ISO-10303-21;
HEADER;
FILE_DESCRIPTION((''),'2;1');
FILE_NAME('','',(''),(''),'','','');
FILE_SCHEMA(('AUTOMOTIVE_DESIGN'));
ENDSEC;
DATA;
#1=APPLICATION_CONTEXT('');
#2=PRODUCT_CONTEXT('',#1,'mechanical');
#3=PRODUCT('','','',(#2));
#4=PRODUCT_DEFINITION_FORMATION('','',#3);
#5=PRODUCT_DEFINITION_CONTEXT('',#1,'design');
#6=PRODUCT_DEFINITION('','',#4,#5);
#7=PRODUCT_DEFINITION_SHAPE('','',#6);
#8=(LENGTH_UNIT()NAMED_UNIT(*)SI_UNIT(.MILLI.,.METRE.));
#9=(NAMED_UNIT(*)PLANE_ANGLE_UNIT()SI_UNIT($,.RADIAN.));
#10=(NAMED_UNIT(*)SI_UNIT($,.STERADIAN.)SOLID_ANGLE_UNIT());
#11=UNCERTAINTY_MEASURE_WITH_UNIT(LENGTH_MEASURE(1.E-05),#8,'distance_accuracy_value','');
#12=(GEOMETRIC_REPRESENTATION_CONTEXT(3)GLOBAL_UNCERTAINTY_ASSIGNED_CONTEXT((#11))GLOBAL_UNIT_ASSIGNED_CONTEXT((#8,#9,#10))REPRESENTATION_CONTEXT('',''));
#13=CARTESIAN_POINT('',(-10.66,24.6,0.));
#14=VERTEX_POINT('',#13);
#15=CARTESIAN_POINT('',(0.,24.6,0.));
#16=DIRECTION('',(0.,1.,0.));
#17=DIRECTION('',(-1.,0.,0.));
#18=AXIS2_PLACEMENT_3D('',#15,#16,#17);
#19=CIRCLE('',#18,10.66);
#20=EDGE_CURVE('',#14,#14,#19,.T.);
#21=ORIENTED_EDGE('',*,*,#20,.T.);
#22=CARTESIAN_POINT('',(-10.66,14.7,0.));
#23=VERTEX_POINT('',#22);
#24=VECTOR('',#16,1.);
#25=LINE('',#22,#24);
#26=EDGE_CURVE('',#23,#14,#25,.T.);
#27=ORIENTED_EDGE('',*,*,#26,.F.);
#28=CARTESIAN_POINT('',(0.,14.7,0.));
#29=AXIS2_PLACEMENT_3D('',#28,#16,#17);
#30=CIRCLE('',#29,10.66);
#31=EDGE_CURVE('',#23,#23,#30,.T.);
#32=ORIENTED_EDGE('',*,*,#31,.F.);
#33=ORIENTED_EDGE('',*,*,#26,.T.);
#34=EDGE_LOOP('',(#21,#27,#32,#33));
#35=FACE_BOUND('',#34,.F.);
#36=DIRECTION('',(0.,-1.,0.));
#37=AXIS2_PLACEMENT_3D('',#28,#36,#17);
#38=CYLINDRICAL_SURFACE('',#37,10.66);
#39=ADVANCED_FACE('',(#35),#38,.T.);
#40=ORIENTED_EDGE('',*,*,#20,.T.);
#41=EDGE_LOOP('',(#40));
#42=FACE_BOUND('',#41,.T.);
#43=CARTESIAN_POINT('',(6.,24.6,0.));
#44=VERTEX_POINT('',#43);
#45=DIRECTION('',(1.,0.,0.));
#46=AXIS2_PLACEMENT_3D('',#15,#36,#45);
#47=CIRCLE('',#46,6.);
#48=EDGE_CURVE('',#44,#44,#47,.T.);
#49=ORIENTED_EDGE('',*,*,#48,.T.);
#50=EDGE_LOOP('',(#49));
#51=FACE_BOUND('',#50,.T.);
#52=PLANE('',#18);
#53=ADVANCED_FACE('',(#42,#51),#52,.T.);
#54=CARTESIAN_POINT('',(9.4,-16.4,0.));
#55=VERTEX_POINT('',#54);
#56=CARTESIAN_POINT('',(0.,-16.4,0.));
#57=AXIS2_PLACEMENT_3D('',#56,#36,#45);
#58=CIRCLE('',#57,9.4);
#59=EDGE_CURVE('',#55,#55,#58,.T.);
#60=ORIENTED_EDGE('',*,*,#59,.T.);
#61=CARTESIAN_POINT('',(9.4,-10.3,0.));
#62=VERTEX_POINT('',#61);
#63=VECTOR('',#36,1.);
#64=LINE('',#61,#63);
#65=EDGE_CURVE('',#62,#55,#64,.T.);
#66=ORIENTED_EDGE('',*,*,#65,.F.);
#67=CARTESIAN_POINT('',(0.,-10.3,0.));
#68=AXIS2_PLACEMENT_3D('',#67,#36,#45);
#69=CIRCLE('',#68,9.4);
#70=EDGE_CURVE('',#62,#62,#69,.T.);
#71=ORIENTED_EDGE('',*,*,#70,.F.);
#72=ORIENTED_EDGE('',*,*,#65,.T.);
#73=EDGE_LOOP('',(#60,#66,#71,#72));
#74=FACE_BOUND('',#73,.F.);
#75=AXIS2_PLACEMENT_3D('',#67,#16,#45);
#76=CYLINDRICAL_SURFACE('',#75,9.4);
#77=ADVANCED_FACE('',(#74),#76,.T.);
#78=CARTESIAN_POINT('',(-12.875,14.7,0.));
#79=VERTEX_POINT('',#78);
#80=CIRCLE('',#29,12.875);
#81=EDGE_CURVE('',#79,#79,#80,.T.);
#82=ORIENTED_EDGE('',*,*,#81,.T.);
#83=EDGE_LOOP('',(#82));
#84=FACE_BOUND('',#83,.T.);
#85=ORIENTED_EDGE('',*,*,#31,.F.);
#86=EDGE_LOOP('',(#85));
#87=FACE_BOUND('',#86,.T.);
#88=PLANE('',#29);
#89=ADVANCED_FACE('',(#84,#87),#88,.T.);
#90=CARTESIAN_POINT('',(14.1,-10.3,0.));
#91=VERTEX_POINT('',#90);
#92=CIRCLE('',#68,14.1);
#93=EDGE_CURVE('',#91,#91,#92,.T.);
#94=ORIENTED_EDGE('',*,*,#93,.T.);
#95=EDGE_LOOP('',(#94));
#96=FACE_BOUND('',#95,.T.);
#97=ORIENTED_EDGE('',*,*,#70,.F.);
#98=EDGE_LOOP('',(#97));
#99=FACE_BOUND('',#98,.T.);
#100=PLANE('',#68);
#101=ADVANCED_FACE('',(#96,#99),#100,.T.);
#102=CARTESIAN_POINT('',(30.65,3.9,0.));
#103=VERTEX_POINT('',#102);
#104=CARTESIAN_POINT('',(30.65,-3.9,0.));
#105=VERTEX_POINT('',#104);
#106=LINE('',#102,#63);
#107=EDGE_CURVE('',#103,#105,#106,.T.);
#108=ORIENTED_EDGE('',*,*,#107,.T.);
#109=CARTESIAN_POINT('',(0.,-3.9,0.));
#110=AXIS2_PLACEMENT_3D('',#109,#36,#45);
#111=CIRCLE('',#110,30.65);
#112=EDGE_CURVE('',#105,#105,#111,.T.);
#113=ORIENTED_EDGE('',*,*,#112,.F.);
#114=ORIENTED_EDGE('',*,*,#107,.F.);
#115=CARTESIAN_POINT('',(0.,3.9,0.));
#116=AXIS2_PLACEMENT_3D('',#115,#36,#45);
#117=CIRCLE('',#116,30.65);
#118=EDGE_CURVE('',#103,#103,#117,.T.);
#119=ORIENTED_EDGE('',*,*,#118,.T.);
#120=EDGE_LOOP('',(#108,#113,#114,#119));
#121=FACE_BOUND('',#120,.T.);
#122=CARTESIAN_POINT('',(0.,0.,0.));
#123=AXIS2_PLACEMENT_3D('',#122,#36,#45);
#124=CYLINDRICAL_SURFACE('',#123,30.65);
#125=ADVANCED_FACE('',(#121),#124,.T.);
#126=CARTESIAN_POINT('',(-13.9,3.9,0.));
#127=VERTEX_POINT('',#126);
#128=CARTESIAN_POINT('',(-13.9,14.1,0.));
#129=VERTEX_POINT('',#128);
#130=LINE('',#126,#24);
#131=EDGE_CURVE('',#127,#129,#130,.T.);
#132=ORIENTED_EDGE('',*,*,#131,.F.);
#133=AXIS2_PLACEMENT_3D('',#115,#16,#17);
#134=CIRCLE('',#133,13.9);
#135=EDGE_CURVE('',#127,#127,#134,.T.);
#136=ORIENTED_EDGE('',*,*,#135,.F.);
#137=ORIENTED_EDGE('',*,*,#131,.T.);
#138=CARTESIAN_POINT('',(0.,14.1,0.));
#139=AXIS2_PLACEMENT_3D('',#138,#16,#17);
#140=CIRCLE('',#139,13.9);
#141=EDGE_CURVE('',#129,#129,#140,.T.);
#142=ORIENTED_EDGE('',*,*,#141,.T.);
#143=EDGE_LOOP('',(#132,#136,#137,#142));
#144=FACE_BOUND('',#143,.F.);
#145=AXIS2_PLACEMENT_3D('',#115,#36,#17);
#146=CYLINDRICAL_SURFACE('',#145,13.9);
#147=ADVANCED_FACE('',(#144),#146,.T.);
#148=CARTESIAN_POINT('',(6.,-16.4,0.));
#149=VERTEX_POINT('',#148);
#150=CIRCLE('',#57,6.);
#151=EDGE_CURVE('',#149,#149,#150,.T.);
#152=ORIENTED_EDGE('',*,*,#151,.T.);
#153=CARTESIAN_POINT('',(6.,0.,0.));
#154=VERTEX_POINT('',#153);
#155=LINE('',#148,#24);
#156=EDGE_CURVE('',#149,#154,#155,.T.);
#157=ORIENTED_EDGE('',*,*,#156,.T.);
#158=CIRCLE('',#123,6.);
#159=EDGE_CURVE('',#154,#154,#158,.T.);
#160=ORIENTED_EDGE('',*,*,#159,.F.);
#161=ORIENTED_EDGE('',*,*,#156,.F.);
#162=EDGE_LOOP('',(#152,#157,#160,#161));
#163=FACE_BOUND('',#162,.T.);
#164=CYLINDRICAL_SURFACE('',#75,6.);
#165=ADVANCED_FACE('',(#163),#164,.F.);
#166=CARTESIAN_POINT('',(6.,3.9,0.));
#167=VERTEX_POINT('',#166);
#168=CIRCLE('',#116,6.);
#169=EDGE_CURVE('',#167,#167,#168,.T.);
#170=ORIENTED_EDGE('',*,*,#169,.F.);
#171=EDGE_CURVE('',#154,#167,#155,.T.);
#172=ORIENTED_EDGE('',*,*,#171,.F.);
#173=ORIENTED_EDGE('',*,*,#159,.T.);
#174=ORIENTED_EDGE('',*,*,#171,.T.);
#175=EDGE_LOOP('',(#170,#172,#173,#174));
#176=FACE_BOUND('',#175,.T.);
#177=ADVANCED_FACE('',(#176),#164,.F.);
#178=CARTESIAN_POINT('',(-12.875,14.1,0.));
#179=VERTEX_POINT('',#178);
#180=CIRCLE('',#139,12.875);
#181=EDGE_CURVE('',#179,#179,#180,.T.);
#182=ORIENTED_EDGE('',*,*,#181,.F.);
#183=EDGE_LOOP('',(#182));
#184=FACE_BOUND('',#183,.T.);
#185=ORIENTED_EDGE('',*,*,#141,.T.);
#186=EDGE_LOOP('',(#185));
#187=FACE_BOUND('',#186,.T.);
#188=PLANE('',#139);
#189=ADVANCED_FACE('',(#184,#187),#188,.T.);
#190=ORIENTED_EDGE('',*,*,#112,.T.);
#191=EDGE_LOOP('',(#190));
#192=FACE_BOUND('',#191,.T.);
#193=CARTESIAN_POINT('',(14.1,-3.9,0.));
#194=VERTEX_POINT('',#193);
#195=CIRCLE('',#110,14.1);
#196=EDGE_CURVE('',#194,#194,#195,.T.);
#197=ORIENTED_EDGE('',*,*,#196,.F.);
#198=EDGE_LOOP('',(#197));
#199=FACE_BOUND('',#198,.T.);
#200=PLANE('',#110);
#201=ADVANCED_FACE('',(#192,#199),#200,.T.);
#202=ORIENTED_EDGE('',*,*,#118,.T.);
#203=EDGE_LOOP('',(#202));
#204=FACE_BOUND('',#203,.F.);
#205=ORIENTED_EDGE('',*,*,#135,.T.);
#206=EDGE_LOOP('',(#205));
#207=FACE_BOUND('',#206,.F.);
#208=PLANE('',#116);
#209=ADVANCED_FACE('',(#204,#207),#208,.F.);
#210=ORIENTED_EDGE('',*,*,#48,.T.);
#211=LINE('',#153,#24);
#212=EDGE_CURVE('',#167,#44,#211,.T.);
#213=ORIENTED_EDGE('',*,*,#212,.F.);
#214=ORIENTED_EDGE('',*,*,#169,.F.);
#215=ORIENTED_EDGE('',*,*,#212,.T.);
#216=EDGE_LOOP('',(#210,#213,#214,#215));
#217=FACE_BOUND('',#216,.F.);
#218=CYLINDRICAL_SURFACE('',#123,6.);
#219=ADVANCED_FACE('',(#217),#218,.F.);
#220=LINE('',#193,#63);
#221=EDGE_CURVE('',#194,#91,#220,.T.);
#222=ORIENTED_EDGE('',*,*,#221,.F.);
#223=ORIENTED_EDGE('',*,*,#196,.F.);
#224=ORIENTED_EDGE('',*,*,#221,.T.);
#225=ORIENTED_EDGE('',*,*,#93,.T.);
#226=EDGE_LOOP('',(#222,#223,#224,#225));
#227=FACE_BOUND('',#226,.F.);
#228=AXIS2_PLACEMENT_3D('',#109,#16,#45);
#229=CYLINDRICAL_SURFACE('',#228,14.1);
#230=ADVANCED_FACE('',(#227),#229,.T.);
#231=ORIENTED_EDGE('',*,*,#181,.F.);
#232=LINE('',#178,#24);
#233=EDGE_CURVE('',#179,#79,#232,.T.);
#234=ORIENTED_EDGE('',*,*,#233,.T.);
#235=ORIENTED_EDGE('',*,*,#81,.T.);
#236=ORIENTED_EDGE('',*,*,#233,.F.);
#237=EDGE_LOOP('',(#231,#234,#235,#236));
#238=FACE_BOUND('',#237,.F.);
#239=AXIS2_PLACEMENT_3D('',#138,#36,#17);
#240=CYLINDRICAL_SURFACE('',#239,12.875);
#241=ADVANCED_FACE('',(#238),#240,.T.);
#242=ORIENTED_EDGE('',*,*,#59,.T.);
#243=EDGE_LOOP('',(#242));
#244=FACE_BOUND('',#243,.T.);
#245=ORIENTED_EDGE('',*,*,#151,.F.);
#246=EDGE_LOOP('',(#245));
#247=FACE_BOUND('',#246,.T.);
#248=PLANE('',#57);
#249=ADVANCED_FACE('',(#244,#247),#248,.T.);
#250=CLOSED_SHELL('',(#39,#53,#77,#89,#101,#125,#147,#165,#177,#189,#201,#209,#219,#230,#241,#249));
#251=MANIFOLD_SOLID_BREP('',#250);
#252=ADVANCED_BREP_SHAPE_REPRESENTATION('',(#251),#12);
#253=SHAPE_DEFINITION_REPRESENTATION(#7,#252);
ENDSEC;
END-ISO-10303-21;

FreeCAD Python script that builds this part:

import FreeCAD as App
import Part
import Sketcher

V = App.Vector
Q = App.Units.Quantity

doc = App.newDocument("Part")
params = doc.addObject("Spreadsheet::Sheet", "Params")
for row, (alias, value) in enumerate([
    ("sketch1_diameter", "12 mm"),
    ("sketch1_diameter2", "61.3 mm"),
    ("pad1_length", "7.8 mm"),
    ("sketch2_diameter", "12 mm"),
    ("sketch2_diameter2", "28.2 mm"),
    ("pad2_length", "6.4 mm"),
    ("sketch3_diameter", "12 mm"),
    ("sketch3_diameter2", "18.8 mm"),
    ("pad3_length", "6.1 mm"),
    ("sketch4_diameter", "27.8 mm"),
    ("pad4_length", "10.2 mm"),
    ("sketch5_diameter", "25.75 mm"),
    ("pad5_length", "0.6 mm"),
    ("sketch6_diameter", "21.32 mm"),
    ("pad6_length", "9.9 mm"),
    ("sketch7_diameter", "12 mm"),
], start=1):
    params.set(f"A{row}", alias)
    params.set(f"B{row}", "=" + value)
    params.setAlias(f"B{row}", alias)

body = doc.addObject("PartDesign::Body", "Body")

sketch1 = body.newObject("Sketcher::SketchObject", "Sketch")
sketch1.AttachmentSupport = (doc.getObject("XZ_Plane"), [""])
sketch1.MapMode = "FlatFace"
sketch1.addGeometry(Part.Circle(V(0, 0, 0), V(0, 0, 1), 30.65), False)
sketch1.addGeometry(Part.Circle(V(0, 0, 0), V(0, 0, 1), 6), False)
sketch1.addConstraint(Sketcher.Constraint("Coincident", 0, 3, -1, 1))
sketch1.addConstraint(Sketcher.Constraint("Coincident", 1, 3, -1, 1))
sketch1.addConstraint(Sketcher.Constraint("Diameter", 1, Q("12 mm")))
sketch1.addConstraint(Sketcher.Constraint("Diameter", 0, Q("61.3 mm")))
sketch1.setExpression("Constraints[2]", "Params.sketch1_diameter")
sketch1.setExpression("Constraints[3]", "Params.sketch1_diameter2")
pad1 = body.newObject("PartDesign::Pad", "Pad")
pad1.Profile = sketch1
pad1.setExpression("Length", "Params.pad1_length")
pad1.Midplane = True

sketch2 = body.newObject("Sketcher::SketchObject", "Sketch001")
sketch2.AttachmentSupport = (doc.getObject("XZ_Plane"), [""])
sketch2.MapMode = "FlatFace"
sketch2.AttachmentOffset = App.Placement(V(0, 0, 3.9), App.Rotation())
sketch2.addGeometry(Part.Circle(V(0, 0, 0), V(0, 0, 1), 14.1), False)
sketch2.addGeometry(Part.Circle(V(0, 0, 0), V(0, 0, 1), 6), False)
sketch2.addConstraint(Sketcher.Constraint("Coincident", 0, 3, -1, 1))
sketch2.addConstraint(Sketcher.Constraint("Coincident", 1, 3, -1, 1))
sketch2.addConstraint(Sketcher.Constraint("Diameter", 1, Q("12 mm")))
sketch2.addConstraint(Sketcher.Constraint("Diameter", 0, Q("28.2 mm")))
sketch2.setExpression("Constraints[2]", "Params.sketch2_diameter")
sketch2.setExpression("Constraints[3]", "Params.sketch2_diameter2")
pad2 = body.newObject("PartDesign::Pad", "Pad001")
pad2.Profile = sketch2
pad2.setExpression("Length", "Params.pad2_length")

sketch3 = body.newObject("Sketcher::SketchObject", "Sketch002")
sketch3.AttachmentSupport = (doc.getObject("XZ_Plane"), [""])
sketch3.MapMode = "FlatFace"
sketch3.AttachmentOffset = App.Placement(V(0, 0, 10.3), App.Rotation())
sketch3.addGeometry(Part.Circle(V(0, 0, 0), V(0, 0, 1), 9.4), False)
sketch3.addGeometry(Part.Circle(V(0, 0, 0), V(0, 0, 1), 6), False)
sketch3.addConstraint(Sketcher.Constraint("Coincident", 0, 3, -1, 1))
sketch3.addConstraint(Sketcher.Constraint("Coincident", 1, 3, -1, 1))
sketch3.addConstraint(Sketcher.Constraint("Diameter", 1, Q("12 mm")))
sketch3.addConstraint(Sketcher.Constraint("Diameter", 0, Q("18.8 mm")))
sketch3.setExpression("Constraints[2]", "Params.sketch3_diameter")
sketch3.setExpression("Constraints[3]", "Params.sketch3_diameter2")
pad3 = body.newObject("PartDesign::Pad", "Pad002")
pad3.Profile = sketch3
pad3.setExpression("Length", "Params.pad3_length")

sketch4 = body.newObject("Sketcher::SketchObject", "Sketch003")
sketch4.AttachmentSupport = (doc.getObject("XZ_Plane"), [""])
sketch4.MapMode = "FlatFace"
sketch4.AttachmentOffset = App.Placement(V(0, 0, -3.9), App.Rotation())
sketch4.addGeometry(Part.Circle(V(0, 0, 0), V(0, 0, 1), 13.9), False)
sketch4.addConstraint(Sketcher.Constraint("Coincident", 0, 3, -1, 1))
sketch4.addConstraint(Sketcher.Constraint("Diameter", 0, Q("27.8 mm")))
sketch4.setExpression("Constraints[1]", "Params.sketch4_diameter")
pad4 = body.newObject("PartDesign::Pad", "Pad003")
pad4.Profile = sketch4
pad4.setExpression("Length", "Params.pad4_length")
pad4.Reversed = True

sketch5 = body.newObject("Sketcher::SketchObject", "Sketch004")
sketch5.AttachmentSupport = (doc.getObject("XZ_Plane"), [""])
sketch5.MapMode = "FlatFace"
sketch5.AttachmentOffset = App.Placement(V(0, 0, -14.1), App.Rotation())
sketch5.addGeometry(Part.Circle(V(0, 0, 0), V(0, 0, 1), 12.875), False)
sketch5.addConstraint(Sketcher.Constraint("Coincident", 0, 3, -1, 1))
sketch5.addConstraint(Sketcher.Constraint("Diameter", 0, Q("25.75 mm")))
sketch5.setExpression("Constraints[1]", "Params.sketch5_diameter")
pad5 = body.newObject("PartDesign::Pad", "Pad004")
pad5.Profile = sketch5
pad5.setExpression("Length", "Params.pad5_length")
pad5.Reversed = True

sketch6 = body.newObject("Sketcher::SketchObject", "Sketch005")
sketch6.AttachmentSupport = (doc.getObject("XZ_Plane"), [""])
sketch6.MapMode = "FlatFace"
sketch6.AttachmentOffset = App.Placement(V(0, 0, -14.7), App.Rotation())
sketch6.addGeometry(Part.Circle(V(0, 0, 0), V(0, 0, 1), 10.66), False)
sketch6.addConstraint(Sketcher.Constraint("Coincident", 0, 3, -1, 1))
sketch6.addConstraint(Sketcher.Constraint("Diameter", 0, Q("21.32 mm")))
sketch6.setExpression("Constraints[1]", "Params.sketch6_diameter")
pad6 = body.newObject("PartDesign::Pad", "Pad005")
pad6.Profile = sketch6
pad6.setExpression("Length", "Params.pad6_length")
pad6.Reversed = True

sketch7 = body.newObject("Sketcher::SketchObject", "Sketch006")
sketch7.AttachmentSupport = (doc.getObject("XZ_Plane"), [""])
sketch7.MapMode = "FlatFace"
sketch7.addGeometry(Part.Circle(V(0, 0, 0), V(0, 0, 1), 6), False)
sketch7.addConstraint(Sketcher.Constraint("Coincident", 0, 3, -1, 1))
sketch7.addConstraint(Sketcher.Constraint("Diameter", 0, Q("12 mm")))
sketch7.setExpression("Constraints[1]", "Params.sketch7_diameter")
pocket1 = body.newObject("PartDesign::Pocket", "Pocket")
pocket1.Profile = sketch7
pocket1.Type = "ThroughAll"

doc.recompute()
